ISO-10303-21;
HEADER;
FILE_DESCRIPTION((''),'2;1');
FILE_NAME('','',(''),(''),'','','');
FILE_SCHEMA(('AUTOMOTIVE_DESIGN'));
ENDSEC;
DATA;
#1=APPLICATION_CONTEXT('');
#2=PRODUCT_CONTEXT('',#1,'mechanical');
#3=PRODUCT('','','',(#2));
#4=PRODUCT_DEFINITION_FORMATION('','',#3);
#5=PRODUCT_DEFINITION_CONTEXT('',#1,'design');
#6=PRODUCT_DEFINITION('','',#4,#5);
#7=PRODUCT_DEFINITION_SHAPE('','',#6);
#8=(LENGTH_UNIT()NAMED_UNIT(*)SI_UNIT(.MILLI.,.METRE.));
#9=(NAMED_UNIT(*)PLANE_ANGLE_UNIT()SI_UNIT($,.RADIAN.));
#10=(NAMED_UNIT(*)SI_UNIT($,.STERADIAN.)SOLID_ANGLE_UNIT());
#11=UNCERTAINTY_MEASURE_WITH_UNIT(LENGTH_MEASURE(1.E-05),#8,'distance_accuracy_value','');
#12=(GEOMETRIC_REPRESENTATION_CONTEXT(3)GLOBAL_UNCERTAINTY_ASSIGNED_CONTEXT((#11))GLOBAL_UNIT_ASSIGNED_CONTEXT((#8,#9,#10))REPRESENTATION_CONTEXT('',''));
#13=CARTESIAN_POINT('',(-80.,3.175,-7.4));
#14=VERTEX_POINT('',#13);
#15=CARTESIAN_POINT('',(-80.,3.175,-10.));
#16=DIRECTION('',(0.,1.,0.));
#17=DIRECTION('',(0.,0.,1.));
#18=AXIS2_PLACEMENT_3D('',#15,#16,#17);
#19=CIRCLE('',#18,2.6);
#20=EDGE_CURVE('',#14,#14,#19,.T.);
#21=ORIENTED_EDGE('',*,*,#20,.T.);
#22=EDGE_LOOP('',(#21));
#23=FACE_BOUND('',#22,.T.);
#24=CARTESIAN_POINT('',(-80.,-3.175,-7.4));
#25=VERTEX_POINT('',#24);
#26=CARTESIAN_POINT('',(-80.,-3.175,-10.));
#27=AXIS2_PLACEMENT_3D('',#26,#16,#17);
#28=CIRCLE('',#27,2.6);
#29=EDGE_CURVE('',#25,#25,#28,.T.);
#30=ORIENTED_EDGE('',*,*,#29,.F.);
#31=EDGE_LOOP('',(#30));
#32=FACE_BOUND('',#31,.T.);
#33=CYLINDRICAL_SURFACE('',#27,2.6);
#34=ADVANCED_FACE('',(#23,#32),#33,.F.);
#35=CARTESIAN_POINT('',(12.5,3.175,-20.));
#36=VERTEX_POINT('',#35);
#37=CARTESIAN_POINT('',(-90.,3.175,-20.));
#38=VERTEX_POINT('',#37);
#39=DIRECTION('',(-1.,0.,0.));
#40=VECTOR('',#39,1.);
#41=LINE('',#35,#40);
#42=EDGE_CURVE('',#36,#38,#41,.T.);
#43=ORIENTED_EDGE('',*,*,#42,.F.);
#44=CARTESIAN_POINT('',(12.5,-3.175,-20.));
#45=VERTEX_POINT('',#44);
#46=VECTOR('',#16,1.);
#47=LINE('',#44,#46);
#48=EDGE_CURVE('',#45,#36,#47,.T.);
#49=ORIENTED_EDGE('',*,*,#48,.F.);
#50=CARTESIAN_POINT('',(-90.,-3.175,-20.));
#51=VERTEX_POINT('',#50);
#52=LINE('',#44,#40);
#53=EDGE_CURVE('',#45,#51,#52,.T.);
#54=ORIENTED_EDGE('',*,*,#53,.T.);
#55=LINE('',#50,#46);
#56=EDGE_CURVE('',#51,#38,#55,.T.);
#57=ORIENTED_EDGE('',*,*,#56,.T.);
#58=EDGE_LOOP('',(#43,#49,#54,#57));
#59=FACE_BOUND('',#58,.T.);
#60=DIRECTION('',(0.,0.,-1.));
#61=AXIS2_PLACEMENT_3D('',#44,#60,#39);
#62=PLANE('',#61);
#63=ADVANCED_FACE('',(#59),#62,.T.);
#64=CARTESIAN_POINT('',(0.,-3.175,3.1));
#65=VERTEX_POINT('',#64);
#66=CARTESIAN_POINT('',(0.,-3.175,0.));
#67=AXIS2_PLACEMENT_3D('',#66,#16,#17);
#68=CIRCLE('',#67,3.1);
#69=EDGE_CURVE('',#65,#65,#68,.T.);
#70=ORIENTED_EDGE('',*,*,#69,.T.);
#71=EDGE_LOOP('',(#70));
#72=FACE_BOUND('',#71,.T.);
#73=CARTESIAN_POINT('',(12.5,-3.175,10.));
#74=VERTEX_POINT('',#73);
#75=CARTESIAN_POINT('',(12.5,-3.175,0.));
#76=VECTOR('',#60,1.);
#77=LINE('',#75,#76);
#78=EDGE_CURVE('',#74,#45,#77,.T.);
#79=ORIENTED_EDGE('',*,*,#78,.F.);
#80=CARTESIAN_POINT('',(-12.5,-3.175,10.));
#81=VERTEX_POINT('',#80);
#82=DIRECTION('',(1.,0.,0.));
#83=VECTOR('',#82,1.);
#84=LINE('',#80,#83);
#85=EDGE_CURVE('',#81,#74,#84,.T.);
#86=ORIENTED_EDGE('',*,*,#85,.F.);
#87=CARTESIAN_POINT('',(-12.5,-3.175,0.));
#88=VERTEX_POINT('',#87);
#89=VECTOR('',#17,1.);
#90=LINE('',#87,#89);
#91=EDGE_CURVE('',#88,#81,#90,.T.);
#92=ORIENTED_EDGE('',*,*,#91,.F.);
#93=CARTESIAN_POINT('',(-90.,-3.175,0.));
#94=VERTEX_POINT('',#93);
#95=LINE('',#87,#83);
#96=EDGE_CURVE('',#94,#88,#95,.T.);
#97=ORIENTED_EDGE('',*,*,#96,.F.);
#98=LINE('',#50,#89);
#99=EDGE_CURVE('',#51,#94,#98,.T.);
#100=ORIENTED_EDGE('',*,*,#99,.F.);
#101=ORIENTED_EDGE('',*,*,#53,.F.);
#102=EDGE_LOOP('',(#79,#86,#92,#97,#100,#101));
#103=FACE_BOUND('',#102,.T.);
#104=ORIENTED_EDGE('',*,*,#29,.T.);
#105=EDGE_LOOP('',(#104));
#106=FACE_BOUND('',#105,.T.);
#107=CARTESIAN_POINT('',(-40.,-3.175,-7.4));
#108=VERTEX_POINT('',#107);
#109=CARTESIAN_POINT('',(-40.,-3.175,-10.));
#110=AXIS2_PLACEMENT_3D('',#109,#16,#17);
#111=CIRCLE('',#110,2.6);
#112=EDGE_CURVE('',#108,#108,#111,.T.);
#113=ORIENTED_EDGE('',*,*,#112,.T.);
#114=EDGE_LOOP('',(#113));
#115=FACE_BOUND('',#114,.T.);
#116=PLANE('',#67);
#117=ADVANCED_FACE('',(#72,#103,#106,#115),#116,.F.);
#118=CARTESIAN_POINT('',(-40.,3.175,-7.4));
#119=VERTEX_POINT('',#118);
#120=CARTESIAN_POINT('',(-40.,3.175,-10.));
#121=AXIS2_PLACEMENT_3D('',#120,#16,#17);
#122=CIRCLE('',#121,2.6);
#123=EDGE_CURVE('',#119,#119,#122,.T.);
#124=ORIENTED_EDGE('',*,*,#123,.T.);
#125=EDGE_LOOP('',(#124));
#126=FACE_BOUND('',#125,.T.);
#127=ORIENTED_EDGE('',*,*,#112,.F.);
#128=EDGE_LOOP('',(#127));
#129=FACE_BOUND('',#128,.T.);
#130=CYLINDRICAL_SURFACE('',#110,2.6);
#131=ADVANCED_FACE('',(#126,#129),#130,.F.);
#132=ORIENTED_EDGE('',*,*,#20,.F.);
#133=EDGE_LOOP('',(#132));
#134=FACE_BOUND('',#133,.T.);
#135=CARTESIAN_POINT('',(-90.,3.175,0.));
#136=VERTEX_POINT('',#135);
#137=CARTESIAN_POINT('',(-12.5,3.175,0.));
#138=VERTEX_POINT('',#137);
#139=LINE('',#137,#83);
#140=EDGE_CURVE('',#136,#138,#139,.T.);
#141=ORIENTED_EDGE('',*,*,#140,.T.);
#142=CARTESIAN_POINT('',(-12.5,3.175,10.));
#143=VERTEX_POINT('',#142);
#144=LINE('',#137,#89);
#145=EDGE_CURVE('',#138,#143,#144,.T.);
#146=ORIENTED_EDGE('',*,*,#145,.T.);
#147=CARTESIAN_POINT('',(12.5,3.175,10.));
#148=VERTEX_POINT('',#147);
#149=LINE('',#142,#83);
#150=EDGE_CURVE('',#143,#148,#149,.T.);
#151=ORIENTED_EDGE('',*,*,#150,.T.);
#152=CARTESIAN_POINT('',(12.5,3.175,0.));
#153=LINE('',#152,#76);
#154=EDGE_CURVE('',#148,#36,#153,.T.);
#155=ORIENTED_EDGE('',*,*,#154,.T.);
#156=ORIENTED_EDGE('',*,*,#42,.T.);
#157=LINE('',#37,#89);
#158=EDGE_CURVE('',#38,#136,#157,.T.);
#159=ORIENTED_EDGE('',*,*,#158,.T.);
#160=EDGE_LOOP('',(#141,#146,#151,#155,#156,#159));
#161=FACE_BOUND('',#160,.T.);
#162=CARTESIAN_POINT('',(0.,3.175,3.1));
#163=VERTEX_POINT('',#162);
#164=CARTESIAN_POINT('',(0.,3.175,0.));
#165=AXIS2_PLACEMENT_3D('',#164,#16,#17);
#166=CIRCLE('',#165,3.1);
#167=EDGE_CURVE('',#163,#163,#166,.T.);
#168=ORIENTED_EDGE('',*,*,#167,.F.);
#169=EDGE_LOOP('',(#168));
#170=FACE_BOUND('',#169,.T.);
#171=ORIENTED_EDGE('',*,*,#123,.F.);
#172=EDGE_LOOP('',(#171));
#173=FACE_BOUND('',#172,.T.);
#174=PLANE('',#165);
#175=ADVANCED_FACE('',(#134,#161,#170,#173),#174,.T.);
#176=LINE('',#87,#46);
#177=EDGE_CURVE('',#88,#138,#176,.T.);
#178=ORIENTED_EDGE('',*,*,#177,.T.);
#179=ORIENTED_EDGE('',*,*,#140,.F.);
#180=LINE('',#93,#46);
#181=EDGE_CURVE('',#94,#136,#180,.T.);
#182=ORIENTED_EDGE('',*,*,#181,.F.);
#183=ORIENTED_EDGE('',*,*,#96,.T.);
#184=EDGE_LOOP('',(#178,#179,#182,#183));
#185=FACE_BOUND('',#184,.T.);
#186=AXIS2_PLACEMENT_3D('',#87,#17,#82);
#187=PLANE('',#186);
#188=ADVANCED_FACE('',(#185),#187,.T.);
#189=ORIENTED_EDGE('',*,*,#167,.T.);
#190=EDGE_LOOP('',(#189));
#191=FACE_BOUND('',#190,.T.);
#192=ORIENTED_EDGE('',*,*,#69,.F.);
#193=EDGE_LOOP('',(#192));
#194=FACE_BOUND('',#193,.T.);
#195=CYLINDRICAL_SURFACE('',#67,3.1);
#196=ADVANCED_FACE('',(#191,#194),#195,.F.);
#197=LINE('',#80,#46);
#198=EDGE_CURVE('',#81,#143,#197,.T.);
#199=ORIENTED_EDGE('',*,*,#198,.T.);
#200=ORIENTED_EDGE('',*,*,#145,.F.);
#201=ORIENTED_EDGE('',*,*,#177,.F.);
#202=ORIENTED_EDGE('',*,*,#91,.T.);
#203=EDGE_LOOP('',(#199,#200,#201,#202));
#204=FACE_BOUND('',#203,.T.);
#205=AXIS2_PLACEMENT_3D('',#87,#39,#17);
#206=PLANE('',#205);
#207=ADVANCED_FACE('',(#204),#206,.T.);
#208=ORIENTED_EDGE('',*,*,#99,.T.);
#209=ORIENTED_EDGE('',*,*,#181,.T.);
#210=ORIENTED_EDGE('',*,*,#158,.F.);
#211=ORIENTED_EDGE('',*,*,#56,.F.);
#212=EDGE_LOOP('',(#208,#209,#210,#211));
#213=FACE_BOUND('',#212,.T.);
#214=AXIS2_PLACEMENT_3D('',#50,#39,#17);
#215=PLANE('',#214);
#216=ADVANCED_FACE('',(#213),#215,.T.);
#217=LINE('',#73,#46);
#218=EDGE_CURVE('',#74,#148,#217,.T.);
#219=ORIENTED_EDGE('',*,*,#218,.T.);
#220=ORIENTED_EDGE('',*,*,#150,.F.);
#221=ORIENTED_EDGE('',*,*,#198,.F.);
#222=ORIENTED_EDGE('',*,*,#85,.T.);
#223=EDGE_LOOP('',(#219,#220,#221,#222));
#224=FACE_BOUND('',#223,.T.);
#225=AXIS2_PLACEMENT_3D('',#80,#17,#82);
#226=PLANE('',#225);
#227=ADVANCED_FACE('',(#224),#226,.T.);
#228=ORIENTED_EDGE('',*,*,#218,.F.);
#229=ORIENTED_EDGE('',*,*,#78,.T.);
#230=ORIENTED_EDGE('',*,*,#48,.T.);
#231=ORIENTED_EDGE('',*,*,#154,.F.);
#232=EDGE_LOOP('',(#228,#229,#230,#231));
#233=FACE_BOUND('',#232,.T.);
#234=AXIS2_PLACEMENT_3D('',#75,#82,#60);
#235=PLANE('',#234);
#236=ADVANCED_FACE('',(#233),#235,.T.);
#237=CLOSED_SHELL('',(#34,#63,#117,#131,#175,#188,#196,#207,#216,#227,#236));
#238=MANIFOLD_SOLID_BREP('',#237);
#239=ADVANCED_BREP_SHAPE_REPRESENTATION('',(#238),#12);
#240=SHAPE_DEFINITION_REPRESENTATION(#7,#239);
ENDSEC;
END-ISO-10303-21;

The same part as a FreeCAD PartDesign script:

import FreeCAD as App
import Part
import Sketcher
from FreeCAD import Vector
Q = App.Units.Quantity


def add_polygon(sketch, points):
    """Adds a closed chain of lines whose ends are joined by coincident constraints."""
    first, n = sketch.GeometryCount, len(points)
    for a, b in zip(points, points[1:] + points[:1]):
        sketch.addGeometry(Part.LineSegment(App.Vector(*a, 0), App.Vector(*b, 0)), False)
    for i in range(n):
        sketch.addConstraint(Sketcher.Constraint("Coincident", first + i, 2, first + (i + 1) % n, 1))

doc = App.newDocument("Part")
body = doc.addObject("PartDesign::Body", "Body")

sketch1 = doc.addObject("Sketcher::SketchObject", "Sketch")
body.addObject(sketch1)
sketch1.AttachmentSupport = (doc.XZ_Plane, [""])
sketch1.MapMode = "FlatFace"
add_polygon(sketch1, [(-12.5, 0), (-12.5, 10), (12.5, 10), (12.5, -20), (-90, -20), (-90, 0)])
sketch1.addGeometry(Part.Circle(Vector(0, 0, 0), Vector(0, 0, 1), 3.1), False)
sketch1.addGeometry(Part.Circle(Vector(-80, -10, 0), Vector(0, 0, 1), 2.6), False)
sketch1.addGeometry(Part.Circle(Vector(-40, -10, 0), Vector(0, 0, 1), 2.6), False)
sketch1.addConstraint(Sketcher.Constraint("Vertical", 0))
sketch1.addConstraint(Sketcher.Constraint("Horizontal", 1))
sketch1.addConstraint(Sketcher.Constraint("Vertical", 2))
sketch1.addConstraint(Sketcher.Constraint("Horizontal", 3))
sketch1.addConstraint(Sketcher.Constraint("Vertical", 4))
sketch1.addConstraint(Sketcher.Constraint("Horizontal", 5))
sketch1.addConstraint(Sketcher.Constraint("Coincident", 6, 3, -1, 1))
sketch1.addConstraint(Sketcher.Constraint("Equal", 7, 8))
sketch1.addConstraint(Sketcher.Constraint("PointOnObject", 4, 2, -1))
sketch1.addConstraint(Sketcher.Constraint("Horizontal", 7, 3, 8, 3))
sketch1.addConstraint(Sketcher.Constraint("Diameter", 6, Q("6.2 mm")))
sketch1.addConstraint(Sketcher.Constraint("Diameter", 7, Q("5.2 mm")))
sketch1.addConstraint(Sketcher.Constraint("DistanceX", 1, 1, 1, 2, Q("25 mm")))
sketch1.addConstraint(Sketcher.Constraint("DistanceY", 0, 1, 0, 2, Q("10 mm")))
sketch1.addConstraint(Sketcher.Constraint("DistanceY", 2, 2, 2, 1, Q("30 mm")))
sketch1.addConstraint(Sketcher.Constraint("DistanceX", 3, 2, 3, 1, Q("102.5 mm")))
sketch1.addConstraint(Sketcher.Constraint("DistanceX", 7, 3, -1, 1, Q("80 mm")))
sketch1.addConstraint(Sketcher.Constraint("DistanceY", 7, 3, -1, 1, Q("10 mm")))
sketch1.addConstraint(Sketcher.Constraint("DistanceX", 8, 3, -1, 1, Q("40 mm")))
sketch1.addConstraint(Sketcher.Constraint("DistanceX", 3, 2, -1, 1, Q("90 mm")))
pad1 = doc.addObject("PartDesign::Pad", "Pad")
body.addObject(pad1)
pad1.Profile = sketch1
pad1.Type = "TwoLengths"
pad1.Length = 3.175
pad1.Length2 = 3.175
pad1.Reversed = True

doc.recompute()
